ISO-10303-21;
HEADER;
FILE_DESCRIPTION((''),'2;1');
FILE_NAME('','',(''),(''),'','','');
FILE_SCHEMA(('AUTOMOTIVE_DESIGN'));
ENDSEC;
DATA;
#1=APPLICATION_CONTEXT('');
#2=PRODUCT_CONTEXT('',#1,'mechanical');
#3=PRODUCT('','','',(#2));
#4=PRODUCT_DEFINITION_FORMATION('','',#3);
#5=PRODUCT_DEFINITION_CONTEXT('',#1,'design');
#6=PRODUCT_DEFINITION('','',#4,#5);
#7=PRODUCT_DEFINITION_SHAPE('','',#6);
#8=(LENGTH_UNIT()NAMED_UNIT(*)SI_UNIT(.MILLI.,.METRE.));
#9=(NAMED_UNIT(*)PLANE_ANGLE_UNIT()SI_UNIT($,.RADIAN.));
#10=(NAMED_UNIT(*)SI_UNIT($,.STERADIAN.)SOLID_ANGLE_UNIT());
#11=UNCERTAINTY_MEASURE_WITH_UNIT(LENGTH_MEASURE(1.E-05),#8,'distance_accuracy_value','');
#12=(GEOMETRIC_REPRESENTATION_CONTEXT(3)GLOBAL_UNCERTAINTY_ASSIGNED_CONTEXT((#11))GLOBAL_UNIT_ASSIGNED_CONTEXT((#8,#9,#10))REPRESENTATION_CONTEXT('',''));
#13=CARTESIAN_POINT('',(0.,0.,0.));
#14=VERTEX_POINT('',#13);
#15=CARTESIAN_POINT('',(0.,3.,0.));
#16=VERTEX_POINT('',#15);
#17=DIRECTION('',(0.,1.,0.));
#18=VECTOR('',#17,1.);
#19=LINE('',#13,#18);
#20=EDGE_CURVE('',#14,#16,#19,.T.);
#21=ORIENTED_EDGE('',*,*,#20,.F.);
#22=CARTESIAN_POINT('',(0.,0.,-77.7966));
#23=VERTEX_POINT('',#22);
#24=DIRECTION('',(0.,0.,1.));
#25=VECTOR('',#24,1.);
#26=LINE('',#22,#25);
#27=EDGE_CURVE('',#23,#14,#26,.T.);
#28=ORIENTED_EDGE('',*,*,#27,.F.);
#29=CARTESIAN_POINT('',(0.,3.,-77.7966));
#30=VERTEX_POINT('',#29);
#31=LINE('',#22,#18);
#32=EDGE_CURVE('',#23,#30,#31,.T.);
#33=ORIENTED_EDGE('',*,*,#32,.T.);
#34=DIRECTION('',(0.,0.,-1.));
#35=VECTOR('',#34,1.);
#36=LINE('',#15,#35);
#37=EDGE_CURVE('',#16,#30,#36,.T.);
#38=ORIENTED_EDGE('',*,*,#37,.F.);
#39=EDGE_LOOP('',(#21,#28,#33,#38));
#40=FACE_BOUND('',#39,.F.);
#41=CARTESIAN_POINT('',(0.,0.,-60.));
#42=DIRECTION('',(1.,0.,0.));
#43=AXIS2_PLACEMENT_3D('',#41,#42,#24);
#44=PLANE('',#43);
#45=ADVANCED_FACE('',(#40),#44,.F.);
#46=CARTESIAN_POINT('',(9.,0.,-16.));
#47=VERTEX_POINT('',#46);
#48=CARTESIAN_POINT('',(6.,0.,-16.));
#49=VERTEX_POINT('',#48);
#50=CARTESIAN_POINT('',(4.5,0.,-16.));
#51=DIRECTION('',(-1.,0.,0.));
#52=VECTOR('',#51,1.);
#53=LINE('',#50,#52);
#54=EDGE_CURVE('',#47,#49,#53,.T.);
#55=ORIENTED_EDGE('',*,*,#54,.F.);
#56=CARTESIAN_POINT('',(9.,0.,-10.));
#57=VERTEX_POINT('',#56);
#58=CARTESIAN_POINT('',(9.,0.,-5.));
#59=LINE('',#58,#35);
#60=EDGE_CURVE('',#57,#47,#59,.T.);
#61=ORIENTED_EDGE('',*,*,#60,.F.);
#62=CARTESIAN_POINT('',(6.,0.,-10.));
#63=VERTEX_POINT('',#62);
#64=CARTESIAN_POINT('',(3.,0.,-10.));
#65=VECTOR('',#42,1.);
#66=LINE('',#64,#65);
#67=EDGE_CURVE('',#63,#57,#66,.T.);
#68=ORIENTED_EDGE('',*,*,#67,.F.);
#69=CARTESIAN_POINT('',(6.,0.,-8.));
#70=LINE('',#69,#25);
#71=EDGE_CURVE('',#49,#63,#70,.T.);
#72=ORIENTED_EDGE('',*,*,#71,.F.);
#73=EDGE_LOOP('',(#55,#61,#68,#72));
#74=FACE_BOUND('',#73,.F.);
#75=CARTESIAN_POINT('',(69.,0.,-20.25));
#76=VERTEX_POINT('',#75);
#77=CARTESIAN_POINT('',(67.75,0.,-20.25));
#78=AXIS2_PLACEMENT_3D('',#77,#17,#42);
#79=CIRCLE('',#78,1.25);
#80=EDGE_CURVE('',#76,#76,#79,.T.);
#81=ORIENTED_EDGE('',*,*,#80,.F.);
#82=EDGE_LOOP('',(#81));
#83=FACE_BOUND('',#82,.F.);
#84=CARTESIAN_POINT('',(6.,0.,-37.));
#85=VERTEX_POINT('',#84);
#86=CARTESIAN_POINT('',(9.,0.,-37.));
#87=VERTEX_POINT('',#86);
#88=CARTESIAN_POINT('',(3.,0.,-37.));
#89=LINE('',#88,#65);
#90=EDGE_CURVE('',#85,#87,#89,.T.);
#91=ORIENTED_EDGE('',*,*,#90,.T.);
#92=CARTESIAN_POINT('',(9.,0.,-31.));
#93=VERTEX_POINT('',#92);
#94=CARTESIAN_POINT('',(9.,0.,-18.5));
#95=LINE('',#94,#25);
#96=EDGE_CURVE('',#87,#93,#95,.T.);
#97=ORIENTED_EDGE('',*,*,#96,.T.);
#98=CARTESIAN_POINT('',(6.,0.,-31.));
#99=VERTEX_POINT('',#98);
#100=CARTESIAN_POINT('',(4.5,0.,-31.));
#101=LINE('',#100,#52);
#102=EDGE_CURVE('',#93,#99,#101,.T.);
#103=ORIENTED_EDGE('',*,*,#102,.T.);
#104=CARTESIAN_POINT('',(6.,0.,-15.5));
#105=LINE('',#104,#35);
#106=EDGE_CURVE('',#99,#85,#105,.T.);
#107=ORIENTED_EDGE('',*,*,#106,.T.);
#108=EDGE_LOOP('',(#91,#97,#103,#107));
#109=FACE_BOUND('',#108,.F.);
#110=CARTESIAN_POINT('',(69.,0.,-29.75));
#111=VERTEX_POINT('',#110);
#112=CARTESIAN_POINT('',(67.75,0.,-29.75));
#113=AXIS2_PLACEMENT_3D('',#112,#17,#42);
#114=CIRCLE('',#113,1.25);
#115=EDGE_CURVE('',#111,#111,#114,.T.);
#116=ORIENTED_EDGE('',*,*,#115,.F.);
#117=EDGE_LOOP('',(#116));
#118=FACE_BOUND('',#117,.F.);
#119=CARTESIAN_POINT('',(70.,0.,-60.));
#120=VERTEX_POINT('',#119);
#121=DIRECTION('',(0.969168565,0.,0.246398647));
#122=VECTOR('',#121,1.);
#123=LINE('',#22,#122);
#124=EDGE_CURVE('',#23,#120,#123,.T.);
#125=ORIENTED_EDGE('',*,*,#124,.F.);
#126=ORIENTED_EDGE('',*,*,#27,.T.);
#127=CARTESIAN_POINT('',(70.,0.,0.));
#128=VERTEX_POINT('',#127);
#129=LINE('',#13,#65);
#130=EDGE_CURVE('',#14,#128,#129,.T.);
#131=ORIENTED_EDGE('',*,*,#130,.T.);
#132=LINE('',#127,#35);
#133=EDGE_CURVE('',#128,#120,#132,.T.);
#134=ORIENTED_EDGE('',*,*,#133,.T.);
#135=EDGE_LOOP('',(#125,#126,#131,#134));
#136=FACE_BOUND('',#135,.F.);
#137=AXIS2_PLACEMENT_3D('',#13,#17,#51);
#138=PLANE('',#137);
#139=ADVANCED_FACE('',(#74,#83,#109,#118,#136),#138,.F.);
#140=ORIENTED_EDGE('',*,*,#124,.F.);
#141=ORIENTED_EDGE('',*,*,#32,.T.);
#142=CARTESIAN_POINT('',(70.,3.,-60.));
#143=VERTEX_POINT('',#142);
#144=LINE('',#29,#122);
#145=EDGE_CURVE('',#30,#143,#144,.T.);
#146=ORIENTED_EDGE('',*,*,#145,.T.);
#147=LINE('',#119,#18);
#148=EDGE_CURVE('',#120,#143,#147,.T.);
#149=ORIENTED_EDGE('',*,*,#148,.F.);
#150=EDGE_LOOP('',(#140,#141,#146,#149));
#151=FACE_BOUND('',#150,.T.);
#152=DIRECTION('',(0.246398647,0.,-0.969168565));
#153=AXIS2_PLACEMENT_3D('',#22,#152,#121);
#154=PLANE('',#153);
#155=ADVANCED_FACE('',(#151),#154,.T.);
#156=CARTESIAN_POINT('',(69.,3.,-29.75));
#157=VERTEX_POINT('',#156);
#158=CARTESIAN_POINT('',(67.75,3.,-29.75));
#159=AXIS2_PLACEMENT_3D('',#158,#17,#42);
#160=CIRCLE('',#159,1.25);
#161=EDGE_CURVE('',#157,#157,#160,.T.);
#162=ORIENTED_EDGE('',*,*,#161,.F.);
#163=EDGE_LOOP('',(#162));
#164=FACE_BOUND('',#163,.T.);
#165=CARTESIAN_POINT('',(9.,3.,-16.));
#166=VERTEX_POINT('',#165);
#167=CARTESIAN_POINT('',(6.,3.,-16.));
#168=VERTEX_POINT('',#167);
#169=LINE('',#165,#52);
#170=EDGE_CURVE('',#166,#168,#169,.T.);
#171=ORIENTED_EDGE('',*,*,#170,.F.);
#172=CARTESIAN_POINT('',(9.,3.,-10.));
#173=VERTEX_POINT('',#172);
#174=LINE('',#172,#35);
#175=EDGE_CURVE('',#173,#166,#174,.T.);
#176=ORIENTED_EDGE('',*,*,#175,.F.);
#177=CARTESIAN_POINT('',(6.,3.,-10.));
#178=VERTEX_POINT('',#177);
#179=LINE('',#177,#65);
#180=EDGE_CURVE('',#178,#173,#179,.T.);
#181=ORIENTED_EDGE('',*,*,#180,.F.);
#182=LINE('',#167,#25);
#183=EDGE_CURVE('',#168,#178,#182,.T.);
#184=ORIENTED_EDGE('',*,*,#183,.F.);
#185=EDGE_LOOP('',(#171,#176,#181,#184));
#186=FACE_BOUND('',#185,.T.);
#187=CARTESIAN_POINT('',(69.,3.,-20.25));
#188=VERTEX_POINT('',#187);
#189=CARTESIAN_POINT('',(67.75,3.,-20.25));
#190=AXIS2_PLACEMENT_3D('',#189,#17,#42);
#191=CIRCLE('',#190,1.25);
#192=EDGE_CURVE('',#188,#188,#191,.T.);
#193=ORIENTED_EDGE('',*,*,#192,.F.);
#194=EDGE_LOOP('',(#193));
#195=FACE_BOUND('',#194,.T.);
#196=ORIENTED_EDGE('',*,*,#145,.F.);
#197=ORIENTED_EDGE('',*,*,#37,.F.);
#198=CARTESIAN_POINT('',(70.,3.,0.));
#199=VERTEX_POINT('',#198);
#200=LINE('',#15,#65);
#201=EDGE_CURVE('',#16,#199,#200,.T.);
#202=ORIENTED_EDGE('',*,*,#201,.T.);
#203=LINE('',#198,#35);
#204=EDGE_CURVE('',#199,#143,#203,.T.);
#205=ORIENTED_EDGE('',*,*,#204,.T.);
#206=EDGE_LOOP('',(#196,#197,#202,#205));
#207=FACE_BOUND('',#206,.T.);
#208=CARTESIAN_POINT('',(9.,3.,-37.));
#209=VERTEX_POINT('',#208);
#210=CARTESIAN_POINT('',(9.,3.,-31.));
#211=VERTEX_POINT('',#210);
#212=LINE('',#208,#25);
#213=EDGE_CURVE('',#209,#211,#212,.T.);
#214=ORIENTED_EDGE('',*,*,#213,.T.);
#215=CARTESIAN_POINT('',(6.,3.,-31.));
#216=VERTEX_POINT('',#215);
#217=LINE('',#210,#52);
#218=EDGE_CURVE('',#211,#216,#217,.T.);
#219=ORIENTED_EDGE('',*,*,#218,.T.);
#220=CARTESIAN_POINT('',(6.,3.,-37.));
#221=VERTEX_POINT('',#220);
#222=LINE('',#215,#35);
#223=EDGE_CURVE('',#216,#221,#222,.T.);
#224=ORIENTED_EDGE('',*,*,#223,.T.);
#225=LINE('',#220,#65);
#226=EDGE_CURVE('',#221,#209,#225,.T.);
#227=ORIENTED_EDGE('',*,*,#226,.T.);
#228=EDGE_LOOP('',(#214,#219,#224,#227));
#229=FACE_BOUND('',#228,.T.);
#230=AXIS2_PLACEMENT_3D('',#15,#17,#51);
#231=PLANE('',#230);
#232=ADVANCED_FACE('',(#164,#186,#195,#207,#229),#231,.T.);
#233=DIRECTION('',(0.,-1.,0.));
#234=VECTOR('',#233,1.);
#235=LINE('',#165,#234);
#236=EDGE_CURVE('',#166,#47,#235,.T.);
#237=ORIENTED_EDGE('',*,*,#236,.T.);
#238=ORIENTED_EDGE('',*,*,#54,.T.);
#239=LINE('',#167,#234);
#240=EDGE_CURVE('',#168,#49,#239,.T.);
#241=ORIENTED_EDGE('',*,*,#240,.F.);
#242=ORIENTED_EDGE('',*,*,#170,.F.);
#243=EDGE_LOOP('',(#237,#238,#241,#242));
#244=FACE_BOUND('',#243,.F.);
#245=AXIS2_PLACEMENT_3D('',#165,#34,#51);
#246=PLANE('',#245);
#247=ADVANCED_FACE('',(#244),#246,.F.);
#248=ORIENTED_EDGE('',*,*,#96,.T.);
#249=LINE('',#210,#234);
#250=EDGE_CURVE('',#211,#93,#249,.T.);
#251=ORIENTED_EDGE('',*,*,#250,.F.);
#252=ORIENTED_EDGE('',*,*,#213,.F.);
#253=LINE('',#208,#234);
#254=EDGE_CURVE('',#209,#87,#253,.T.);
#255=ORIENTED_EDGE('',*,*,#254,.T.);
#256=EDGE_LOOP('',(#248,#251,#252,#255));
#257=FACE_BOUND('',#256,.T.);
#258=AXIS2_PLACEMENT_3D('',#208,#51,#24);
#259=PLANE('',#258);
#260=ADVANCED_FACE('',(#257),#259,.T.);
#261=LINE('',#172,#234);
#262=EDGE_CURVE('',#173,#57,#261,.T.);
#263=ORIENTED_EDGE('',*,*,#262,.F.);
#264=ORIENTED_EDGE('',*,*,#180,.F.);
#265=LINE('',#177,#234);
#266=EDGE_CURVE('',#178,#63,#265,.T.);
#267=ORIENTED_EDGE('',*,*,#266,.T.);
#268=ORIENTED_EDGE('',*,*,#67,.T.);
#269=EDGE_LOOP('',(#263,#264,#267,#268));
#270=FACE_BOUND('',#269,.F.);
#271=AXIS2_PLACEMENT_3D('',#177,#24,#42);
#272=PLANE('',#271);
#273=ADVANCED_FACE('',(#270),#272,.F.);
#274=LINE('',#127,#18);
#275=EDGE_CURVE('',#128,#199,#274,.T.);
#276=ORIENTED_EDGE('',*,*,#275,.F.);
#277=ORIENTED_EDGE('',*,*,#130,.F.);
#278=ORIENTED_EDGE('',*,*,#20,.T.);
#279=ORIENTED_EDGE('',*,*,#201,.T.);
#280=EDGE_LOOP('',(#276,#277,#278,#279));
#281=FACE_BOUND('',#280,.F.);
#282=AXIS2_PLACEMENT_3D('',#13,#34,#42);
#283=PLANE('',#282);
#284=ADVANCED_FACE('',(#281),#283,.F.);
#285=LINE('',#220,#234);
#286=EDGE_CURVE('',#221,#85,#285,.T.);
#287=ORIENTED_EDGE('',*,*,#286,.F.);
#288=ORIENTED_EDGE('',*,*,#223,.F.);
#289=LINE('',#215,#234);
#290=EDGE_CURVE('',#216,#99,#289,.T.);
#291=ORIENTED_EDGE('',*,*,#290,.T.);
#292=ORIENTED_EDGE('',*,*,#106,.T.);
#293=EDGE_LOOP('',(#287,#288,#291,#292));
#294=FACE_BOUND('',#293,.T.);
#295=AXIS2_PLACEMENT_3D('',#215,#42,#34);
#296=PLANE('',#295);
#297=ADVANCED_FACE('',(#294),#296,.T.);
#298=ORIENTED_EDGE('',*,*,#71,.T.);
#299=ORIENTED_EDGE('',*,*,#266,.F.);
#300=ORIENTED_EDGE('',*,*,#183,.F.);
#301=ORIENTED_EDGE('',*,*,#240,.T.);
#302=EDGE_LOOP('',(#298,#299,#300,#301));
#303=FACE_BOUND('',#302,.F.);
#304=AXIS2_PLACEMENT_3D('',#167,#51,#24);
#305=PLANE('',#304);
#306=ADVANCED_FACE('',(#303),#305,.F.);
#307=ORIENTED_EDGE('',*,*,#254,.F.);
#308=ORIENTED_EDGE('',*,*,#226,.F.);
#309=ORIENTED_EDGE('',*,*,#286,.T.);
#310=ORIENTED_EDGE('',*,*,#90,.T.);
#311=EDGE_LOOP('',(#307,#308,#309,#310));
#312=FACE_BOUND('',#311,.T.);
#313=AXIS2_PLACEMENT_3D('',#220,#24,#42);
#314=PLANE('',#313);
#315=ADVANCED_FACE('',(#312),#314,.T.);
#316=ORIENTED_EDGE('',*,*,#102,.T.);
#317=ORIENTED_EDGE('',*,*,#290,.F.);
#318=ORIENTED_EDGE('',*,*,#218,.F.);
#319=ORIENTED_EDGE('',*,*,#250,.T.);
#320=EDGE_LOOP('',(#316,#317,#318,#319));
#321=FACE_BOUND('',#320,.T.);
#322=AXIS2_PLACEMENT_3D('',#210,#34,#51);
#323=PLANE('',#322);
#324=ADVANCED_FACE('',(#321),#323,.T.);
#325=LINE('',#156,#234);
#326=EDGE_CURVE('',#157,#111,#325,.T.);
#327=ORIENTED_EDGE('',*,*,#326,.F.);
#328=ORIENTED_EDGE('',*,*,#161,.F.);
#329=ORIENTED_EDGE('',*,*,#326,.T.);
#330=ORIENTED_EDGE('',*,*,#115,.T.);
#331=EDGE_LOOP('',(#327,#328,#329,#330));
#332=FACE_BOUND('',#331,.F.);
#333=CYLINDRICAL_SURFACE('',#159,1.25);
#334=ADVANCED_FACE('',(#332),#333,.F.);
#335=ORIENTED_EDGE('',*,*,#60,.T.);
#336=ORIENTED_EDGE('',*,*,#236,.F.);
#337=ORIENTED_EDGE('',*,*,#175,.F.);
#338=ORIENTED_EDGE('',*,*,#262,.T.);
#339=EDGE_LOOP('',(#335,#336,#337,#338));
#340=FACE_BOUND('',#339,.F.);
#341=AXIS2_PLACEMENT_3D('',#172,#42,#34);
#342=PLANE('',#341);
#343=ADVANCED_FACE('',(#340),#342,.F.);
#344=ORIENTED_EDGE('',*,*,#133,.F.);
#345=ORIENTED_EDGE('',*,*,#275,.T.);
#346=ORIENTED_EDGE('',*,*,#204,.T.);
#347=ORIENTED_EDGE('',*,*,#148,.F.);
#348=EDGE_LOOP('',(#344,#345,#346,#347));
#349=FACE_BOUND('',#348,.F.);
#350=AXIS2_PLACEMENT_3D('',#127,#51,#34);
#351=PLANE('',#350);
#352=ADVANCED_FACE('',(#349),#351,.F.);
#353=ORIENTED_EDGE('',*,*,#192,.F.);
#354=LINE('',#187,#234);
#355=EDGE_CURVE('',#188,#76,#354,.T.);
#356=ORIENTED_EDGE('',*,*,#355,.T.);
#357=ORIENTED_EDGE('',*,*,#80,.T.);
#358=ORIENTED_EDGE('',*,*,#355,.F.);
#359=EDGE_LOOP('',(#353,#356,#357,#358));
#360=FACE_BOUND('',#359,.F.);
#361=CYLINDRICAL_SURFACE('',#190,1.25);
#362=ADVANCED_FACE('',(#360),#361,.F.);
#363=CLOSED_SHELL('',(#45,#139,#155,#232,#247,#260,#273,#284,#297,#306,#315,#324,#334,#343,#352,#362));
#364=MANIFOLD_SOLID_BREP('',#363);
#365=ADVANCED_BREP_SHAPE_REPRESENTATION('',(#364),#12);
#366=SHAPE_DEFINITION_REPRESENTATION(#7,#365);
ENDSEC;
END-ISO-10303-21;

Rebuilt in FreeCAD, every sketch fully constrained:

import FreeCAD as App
import Part
import Sketcher

doc = App.newDocument("Part")
body = doc.addObject("PartDesign::Body", "Body")

sketch1 = body.newObject("Sketcher::SketchObject", "Sketch")
sketch1.AttachmentSupport = (doc.getObject("XZ_Plane"), [""])
sketch1.MapMode = "FlatFace"
sketch1.addGeometry(Part.LineSegment(App.Vector(0, 0, 0), App.Vector(70, 0, 0)), False)
sketch1.addGeometry(Part.LineSegment(App.Vector(70, 0, 0), App.Vector(70, -60, 0)), False)
sketch1.addGeometry(Part.LineSegment(App.Vector(70, -60, 0), App.Vector(0, -77.7966, 0)), False)
sketch1.addGeometry(Part.LineSegment(App.Vector(0, -77.7966, 0), App.Vector(0, 0, 0)), False)
sketch1.addConstraint(Sketcher.Constraint("Coincident", 0, 2, 1, 1))
sketch1.addConstraint(Sketcher.Constraint("Coincident", 1, 2, 2, 1))
sketch1.addConstraint(Sketcher.Constraint("Coincident", 2, 2, 3, 1))
sketch1.addConstraint(Sketcher.Constraint("Coincident", 3, 2, 0, 1))
sketch1.addConstraint(Sketcher.Constraint("Horizontal", 0))
sketch1.addConstraint(Sketcher.Constraint("Vertical", 1))
sketch1.addConstraint(Sketcher.Constraint("Vertical", 3))
sketch1.addConstraint(Sketcher.Constraint("Coincident", 3, 2, -1, 1))
sketch1.addConstraint(Sketcher.Constraint("DistanceX", 0, 1, 0, 2, 70.0))
sketch1.addConstraint(Sketcher.Constraint("DistanceY", 1, 2, 1, 1, 60.0))
sketch1.addConstraint(Sketcher.Constraint("DistanceY", 3, 1, 3, 2, 77.7966))
pad1 = body.newObject("PartDesign::Pad", "Pad")
pad1.Profile = sketch1
pad1.Length = 3
pad1.Reversed = True

sketch2 = body.newObject("Sketcher::SketchObject", "Sketch001")
sketch2.AttachmentSupport = (doc.getObject("XZ_Plane"), [""])
sketch2.MapMode = "FlatFace"
sketch2.AttachmentOffset = App.Placement(App.Vector(0, 0, -3), App.Rotation())
sketch2.addGeometry(Part.Circle(App.Vector(67.75, -20.25, 0), App.Vector(0, 0, 1), 1.25), False)
sketch2.addGeometry(Part.Circle(App.Vector(67.75, -29.75, 0), App.Vector(0, 0, 1), 1.25), False)
sketch2.addGeometry(Part.LineSegment(App.Vector(6, -16, 0), App.Vector(6, -10, 0)), False)
sketch2.addGeometry(Part.LineSegment(App.Vector(6, -10, 0), App.Vector(9, -10, 0)), False)
sketch2.addGeometry(Part.LineSegment(App.Vector(9, -10, 0), App.Vector(9, -16, 0)), False)
sketch2.addGeometry(Part.LineSegment(App.Vector(9, -16, 0), App.Vector(6, -16, 0)), False)
sketch2.addGeometry(Part.LineSegment(App.Vector(9, -37, 0), App.Vector(6, -37, 0)), False)
sketch2.addGeometry(Part.LineSegment(App.Vector(6, -37, 0), App.Vector(6, -31, 0)), False)
sketch2.addGeometry(Part.LineSegment(App.Vector(6, -31, 0), App.Vector(9, -31, 0)), False)
sketch2.addGeometry(Part.LineSegment(App.Vector(9, -31, 0), App.Vector(9, -37, 0)), False)
sketch2.addConstraint(Sketcher.Constraint("Coincident", 2, 2, 3, 1))
sketch2.addConstraint(Sketcher.Constraint("Coincident", 3, 2, 4, 1))
sketch2.addConstraint(Sketcher.Constraint("Coincident", 4, 2, 5, 1))
sketch2.addConstraint(Sketcher.Constraint("Coincident", 5, 2, 2, 1))
sketch2.addConstraint(Sketcher.Constraint("Coincident", 6, 2, 7, 1))
sketch2.addConstraint(Sketcher.Constraint("Coincident", 7, 2, 8, 1))
sketch2.addConstraint(Sketcher.Constraint("Coincident", 8, 2, 9, 1))
sketch2.addConstraint(Sketcher.Constraint("Coincident", 9, 2, 6, 1))
sketch2.addConstraint(Sketcher.Constraint("Vertical", 2))
sketch2.addConstraint(Sketcher.Constraint("Horizontal", 3))
sketch2.addConstraint(Sketcher.Constraint("Vertical", 4))
sketch2.addConstraint(Sketcher.Constraint("Horizontal", 5))
sketch2.addConstraint(Sketcher.Constraint("Horizontal", 6))
sketch2.addConstraint(Sketcher.Constraint("Vertical", 7))
sketch2.addConstraint(Sketcher.Constraint("Horizontal", 8))
sketch2.addConstraint(Sketcher.Constraint("Vertical", 9))
sketch2.addConstraint(Sketcher.Constraint("Equal", 0, 1))
sketch2.addConstraint(Sketcher.Constraint("Vertical", 0, 3, 1, 3))
sketch2.addConstraint(Sketcher.Constraint("Vertical", 5, 2, 6, 2))
sketch2.addConstraint(Sketcher.Constraint("Vertical", 4, 2, 8, 2))
sketch2.addConstraint(Sketcher.Constraint("Equal", 4, 7))
sketch2.addConstraint(Sketcher.Constraint("Diameter", 0, 2.5))
sketch2.addConstraint(Sketcher.Constraint("DistanceX", 3, 1, 3, 2, 3.0))
sketch2.addConstraint(Sketcher.Constraint("DistanceY", 2, 1, 2, 2, 6.0))
sketch2.addConstraint(Sketcher.Constraint("DistanceX", -1, 1, 2, 2, 6.0))
sketch2.addConstraint(Sketcher.Constraint("DistanceY", 2, 2, -1, 1, 10.0))
sketch2.addConstraint(Sketcher.Constraint("DistanceY", 7, 2, 5, 2, 15.0))
sketch2.addConstraint(Sketcher.Constraint("DistanceY", 1, 3, 0, 3, 9.5))
sketch2.addConstraint(Sketcher.Constraint("DistanceY", 0, 3, -1, 1, 20.25))
sketch2.addConstraint(Sketcher.Constraint("DistanceX", -1, 1, 0, 3, 67.75))
pocket1 = body.newObject("PartDesign::Pocket", "Pocket")
pocket1.Profile = sketch2
pocket1.Type = "ThroughAll"
pocket1.Midplane = True

doc.recompute()
